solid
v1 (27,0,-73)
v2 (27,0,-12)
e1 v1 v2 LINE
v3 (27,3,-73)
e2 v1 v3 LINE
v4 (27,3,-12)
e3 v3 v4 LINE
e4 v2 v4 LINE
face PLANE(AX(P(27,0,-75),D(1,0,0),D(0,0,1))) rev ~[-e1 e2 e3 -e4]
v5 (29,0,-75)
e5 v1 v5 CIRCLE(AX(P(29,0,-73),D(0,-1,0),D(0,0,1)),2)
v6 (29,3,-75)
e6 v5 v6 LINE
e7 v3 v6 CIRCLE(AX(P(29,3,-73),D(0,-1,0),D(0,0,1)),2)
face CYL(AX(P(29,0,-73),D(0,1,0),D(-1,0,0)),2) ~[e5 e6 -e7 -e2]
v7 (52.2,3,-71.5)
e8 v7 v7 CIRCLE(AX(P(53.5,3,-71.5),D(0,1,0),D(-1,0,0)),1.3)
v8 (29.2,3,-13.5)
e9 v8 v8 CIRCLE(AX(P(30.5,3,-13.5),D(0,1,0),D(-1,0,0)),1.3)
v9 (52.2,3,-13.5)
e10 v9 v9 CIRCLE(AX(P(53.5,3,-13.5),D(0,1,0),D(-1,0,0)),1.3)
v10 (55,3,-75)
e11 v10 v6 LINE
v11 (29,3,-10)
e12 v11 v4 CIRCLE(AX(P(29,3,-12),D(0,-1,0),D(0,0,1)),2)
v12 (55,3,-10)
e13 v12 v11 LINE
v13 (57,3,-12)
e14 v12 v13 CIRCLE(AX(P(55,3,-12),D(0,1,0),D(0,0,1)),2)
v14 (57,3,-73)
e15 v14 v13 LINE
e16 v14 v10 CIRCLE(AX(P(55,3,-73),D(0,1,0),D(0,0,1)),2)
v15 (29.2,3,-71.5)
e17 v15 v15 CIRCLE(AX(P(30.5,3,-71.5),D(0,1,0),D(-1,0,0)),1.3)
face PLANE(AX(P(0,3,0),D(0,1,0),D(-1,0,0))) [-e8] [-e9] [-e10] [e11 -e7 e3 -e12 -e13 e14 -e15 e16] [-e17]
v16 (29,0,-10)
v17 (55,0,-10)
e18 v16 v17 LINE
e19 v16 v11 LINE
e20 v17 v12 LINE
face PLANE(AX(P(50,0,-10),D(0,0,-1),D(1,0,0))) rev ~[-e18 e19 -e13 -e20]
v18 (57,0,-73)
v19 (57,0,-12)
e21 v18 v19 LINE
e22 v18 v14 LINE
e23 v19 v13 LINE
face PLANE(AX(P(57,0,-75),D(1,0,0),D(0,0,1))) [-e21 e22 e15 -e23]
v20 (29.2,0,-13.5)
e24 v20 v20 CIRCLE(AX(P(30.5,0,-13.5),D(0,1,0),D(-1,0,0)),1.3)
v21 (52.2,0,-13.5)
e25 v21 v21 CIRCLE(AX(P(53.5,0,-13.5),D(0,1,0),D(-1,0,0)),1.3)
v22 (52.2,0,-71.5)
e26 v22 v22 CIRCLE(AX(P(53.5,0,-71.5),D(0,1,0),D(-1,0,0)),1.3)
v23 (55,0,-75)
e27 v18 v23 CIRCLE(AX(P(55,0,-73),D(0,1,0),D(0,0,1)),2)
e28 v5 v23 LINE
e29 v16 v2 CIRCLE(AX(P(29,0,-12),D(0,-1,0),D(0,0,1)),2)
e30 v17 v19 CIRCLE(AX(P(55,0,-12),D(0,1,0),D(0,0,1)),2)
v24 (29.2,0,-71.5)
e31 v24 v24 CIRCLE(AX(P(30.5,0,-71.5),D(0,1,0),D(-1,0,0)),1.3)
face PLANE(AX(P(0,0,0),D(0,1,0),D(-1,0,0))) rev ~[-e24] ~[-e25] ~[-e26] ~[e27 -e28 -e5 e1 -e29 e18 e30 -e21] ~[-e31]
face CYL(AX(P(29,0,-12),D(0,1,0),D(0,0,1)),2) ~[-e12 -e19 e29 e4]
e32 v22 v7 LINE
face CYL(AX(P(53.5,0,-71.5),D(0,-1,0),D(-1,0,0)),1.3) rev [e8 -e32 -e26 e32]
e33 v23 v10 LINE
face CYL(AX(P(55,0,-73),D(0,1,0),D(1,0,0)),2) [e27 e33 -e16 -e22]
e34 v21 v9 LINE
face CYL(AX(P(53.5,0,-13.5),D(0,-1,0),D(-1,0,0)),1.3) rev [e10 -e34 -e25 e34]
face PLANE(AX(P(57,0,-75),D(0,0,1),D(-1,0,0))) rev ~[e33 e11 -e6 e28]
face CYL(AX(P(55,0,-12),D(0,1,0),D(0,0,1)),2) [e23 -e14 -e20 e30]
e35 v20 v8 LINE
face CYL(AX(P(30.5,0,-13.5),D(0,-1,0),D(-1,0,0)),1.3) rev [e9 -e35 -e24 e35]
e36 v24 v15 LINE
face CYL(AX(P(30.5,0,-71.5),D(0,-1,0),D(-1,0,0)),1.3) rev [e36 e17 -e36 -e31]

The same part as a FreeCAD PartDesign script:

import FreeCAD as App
import Part
import Sketcher

V = App.Vector
Q = App.Units.Quantity


def edges_at(feature, points):
    """Names of the edges that pass closest to the given points."""
    edges = feature.Shape.Edges
    near = lambda p: min(range(len(edges)), key=lambda i: edges[i].distToShape(Part.Vertex(*p))[0])
    return sorted({f"Edge{near(p) + 1}" for p in points})

doc = App.newDocument("Part")
params = doc.addObject("Spreadsheet::Sheet", "Params")
for row, (alias, value) in enumerate([
    ("sketch1_diameter", "2.6 mm"),
    ("sketch1_width", "30 mm"),
    ("sketch1_height", "65 mm"),
    ("pad1_length", "3 mm"),
    ("fillet_radius", "2 mm"),
], start=1):
    params.set(f"A{row}", alias)
    params.set(f"B{row}", "=" + value)
    params.setAlias(f"B{row}", alias)

body = doc.addObject("PartDesign::Body", "Body")

# Sketch on XZ plane
sketch1 = body.newObject("Sketcher::SketchObject", "Sketch")
sketch1.AttachmentSupport = (doc.getObject("XZ_Plane"), [""])
sketch1.MapMode = "FlatFace"
sketch1.addGeometry(Part.LineSegment(V(57, -10, 0), V(57, -75, 0)), False)
sketch1.addGeometry(Part.LineSegment(V(57, -75, 0), V(27, -75, 0)), False)
sketch1.addGeometry(Part.LineSegment(V(27, -75, 0), V(27, -10, 0)), False)
sketch1.addGeometry(Part.LineSegment(V(27, -10, 0), V(57, -10, 0)), False)
sketch1.addGeometry(Part.Circle(V(53.5, -71.5, 0), V(0, 0, 1), 1.3), False)
sketch1.addGeometry(Part.Circle(V(53.5, -13.5, 0), V(0, 0, 1), 1.3), False)
sketch1.addGeometry(Part.Circle(V(30.5, -13.5, 0), V(0, 0, 1), 1.3), False)
sketch1.addGeometry(Part.Circle(V(30.5, -71.5, 0), V(0, 0, 1), 1.3), False)
sketch1.addConstraint(Sketcher.Constraint("Coincident", 0, 2, 1, 1))
sketch1.addConstraint(Sketcher.Constraint("Coincident", 1, 2, 2, 1))
sketch1.addConstraint(Sketcher.Constraint("Coincident", 2, 2, 3, 1))
sketch1.addConstraint(Sketcher.Constraint("Coincident", 3, 2, 0, 1))
sketch1.addConstraint(Sketcher.Constraint("Vertical", 0))
sketch1.addConstraint(Sketcher.Constraint("Horizontal", 1))
sketch1.addConstraint(Sketcher.Constraint("Vertical", 2))
sketch1.addConstraint(Sketcher.Constraint("Horizontal", 3))
sketch1.addConstraint(Sketcher.Constraint("Equal", 4, 5))
sketch1.addConstraint(Sketcher.Constraint("Equal", 5, 6))
sketch1.addConstraint(Sketcher.Constraint("Equal", 6, 7))
sketch1.addConstraint(Sketcher.Constraint("Horizontal", 5, 3, 6, 3))
sketch1.addConstraint(Sketcher.Constraint("Horizontal", 4, 3, 7, 3))
sketch1.addConstraint(Sketcher.Constraint("Vertical", 4, 3, 5, 3))
sketch1.addConstraint(Sketcher.Constraint("Vertical", 6, 3, 7, 3))
sketch1.addConstraint(Sketcher.Constraint("Diameter", 4, Q("2.6 mm")))
sketch1.addConstraint(Sketcher.Constraint("DistanceX", 1, 2, 1, 1, Q("30 mm")))
sketch1.addConstraint(Sketcher.Constraint("DistanceY", 0, 2, 0, 1, Q("65 mm")))
sketch1.addConstraint(Sketcher.Constraint("DistanceX", -1, 1, 1, 2, Q("27 mm")))
sketch1.addConstraint(Sketcher.Constraint("DistanceY", 2, 2, -1, 1, Q("10 mm")))
sketch1.addConstraint(Sketcher.Constraint("DistanceX", 4, 3, 0, 2, Q("3.5 mm")))
sketch1.addConstraint(Sketcher.Constraint("DistanceY", 0, 2, 4, 3, Q("3.5 mm")))
sketch1.addConstraint(Sketcher.Constraint("DistanceX", 1, 2, 7, 3, Q("3.5 mm")))
sketch1.addConstraint(Sketcher.Constraint("DistanceY", 6, 3, 2, 2, Q("3.5 mm")))
sketch1.setExpression("Constraints[15]", "Params.sketch1_diameter")
sketch1.setExpression("Constraints[16]", "Params.sketch1_width")
sketch1.setExpression("Constraints[17]", "Params.sketch1_height")
pad1 = body.newObject("PartDesign::Pad", "Pad")
pad1.Profile = sketch1
pad1.setExpression("Length", "Params.pad1_length")
pad1.Reversed = True
doc.recompute()

fillet = body.newObject("PartDesign::Fillet", "Fillet")
fillet.Base = (pad1, edges_at(pad1, [
    (57, 1.5, -10),
    (57, 1.5, -75),
    (27, 1.5, -10),
    (27, 1.5, -75),
]))
fillet.setExpression("Radius", "Params.fillet_radius")

doc.recompute()
